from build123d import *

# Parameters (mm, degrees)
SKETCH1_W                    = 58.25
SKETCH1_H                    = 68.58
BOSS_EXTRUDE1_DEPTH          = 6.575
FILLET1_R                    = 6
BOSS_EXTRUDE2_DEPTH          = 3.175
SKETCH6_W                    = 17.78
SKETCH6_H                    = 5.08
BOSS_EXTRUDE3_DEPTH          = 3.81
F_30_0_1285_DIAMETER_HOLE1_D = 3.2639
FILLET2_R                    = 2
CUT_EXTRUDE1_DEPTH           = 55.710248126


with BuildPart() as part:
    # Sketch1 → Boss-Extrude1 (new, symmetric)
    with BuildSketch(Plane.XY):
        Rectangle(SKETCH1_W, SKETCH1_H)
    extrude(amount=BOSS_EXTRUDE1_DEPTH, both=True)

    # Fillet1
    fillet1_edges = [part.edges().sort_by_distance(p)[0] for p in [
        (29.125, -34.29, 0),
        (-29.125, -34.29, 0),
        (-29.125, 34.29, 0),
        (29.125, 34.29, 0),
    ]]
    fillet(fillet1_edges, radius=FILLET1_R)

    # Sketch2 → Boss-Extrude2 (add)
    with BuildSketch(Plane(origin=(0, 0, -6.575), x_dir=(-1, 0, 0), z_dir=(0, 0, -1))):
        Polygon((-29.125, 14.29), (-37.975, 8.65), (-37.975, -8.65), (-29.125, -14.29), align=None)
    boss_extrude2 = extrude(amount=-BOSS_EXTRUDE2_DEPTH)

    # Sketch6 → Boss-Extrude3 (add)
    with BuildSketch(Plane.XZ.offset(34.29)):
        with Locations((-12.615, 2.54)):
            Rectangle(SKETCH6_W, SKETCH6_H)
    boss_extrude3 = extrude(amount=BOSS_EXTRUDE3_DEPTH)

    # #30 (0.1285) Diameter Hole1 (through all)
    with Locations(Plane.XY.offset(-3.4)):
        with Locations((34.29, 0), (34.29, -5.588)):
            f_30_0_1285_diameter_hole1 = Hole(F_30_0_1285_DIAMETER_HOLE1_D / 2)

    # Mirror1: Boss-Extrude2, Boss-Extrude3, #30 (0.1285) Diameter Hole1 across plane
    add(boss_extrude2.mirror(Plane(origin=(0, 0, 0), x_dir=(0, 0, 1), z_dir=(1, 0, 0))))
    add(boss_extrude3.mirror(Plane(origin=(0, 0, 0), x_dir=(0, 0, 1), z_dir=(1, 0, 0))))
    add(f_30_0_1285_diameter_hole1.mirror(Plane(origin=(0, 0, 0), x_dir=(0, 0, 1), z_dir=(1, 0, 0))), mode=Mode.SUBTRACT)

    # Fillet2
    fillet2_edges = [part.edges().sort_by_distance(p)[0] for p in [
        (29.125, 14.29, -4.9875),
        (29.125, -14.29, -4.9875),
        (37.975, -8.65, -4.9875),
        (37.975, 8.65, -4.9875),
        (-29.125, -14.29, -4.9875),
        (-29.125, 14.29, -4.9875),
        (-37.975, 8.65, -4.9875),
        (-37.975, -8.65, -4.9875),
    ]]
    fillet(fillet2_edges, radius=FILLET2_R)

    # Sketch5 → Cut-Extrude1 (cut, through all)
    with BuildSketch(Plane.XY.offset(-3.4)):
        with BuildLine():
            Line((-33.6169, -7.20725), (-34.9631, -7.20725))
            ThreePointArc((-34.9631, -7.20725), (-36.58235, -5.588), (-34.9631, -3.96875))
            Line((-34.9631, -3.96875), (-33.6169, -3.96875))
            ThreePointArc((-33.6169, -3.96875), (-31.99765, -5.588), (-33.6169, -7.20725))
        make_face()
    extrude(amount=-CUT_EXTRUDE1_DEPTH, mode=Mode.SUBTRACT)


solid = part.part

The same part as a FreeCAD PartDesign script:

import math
import FreeCAD as App
import Part
import Sketcher
from FreeCAD import Vector
Q = App.Units.Quantity


def edges_at(feature, points):
    """Names of the edges that pass closest to the given points."""
    edges = feature.Shape.Edges
    near = lambda p: min(range(len(edges)), key=lambda i: edges[i].distToShape(Part.Vertex(*p))[0])
    return sorted({f"Edge{near(p) + 1}" for p in points})


def add_polygon(sketch, points):
    """Adds a closed chain of lines whose ends are joined by coincident constraints."""
    first, n = sketch.GeometryCount, len(points)
    for a, b in zip(points, points[1:] + points[:1]):
        sketch.addGeometry(Part.LineSegment(App.Vector(*a, 0), App.Vector(*b, 0)), False)
    for i in range(n):
        sketch.addConstraint(Sketcher.Constraint("Coincident", first + i, 2, first + (i + 1) % n, 1))

doc = App.newDocument("Part")
body = doc.addObject("PartDesign::Body", "Body")

sketch1 = doc.addObject("Sketcher::SketchObject", "Sketch")
body.addObject(sketch1)
sketch1.AttachmentSupport = (doc.XY_Plane, [""])
sketch1.MapMode = "FlatFace"
add_polygon(sketch1, [(-29, 34), (-29, -34), (29, -34), (29, 34)])
sketch1.addConstraint([
    Sketcher.Constraint("Vertical", 0),
    Sketcher.Constraint("Horizontal", 1),
    Sketcher.Constraint("Vertical", 2),
    Sketcher.Constraint("Horizontal", 3),
    Sketcher.Constraint("Symmetric", 0, 2, 2, 2, -1, 1),
    Sketcher.Constraint("DistanceY", 0, 2, 0, 1, Q("2.7 in")),
    Sketcher.Constraint("DistanceX", 1, 1, 1, 2, Q("58.25 mm")),
])
pad1 = doc.addObject("PartDesign::Pad", "Pad")
body.addObject(pad1)
pad1.Profile = sketch1
pad1.Length = 13.15
pad1.Midplane = True
doc.recompute()

fillet = doc.addObject("PartDesign::Fillet", "Fillet")
body.addObject(fillet)
fillet.Base = (pad1, edges_at(pad1, [
    (29.125, -34.29, 0),
    (-29.125, -34.29, 0),
    (-29.125, 34.29, 0),
    (29.125, 34.29, 0),
]))
fillet.Radius = 6

sketch2 = doc.addObject("Sketcher::SketchObject", "Sketch001")
body.addObject(sketch2)
sketch2.AttachmentSupport = (doc.XY_Plane, [""])
sketch2.MapMode = "FlatFace"
sketch2.AttachmentOffset = App.Placement(Vector(0, 0, -6.575), App.Rotation())
add_polygon(sketch2, [(29, 14), (38, 9), (38, -9), (29, -14)])
sketch2.addConstraint([
    Sketcher.Constraint("Vertical", 1),
    Sketcher.Constraint("Vertical", 3),
    Sketcher.Constraint("Equal", 0, 2),
    Sketcher.Constraint("DistanceY", 1, 2, 1, 1, Q("17.3 mm")),
    Sketcher.Constraint("DistanceY", 3, 1, 3, 2, Q("28.58 mm")),
    Sketcher.Constraint("DistanceX", -1, 1, 0, 2, Q("37.975 mm")),
    Sketcher.Constraint("DistanceY", -1, 1, 0, 2, Q("8.65 mm")),
    Sketcher.Constraint("DistanceX", -1, 1, 2, 2, Q("29.125 mm")),
])
pad2 = doc.addObject("PartDesign::Pad", "Pad001")
body.addObject(pad2)
pad2.Profile = sketch2
pad2.Length = Q("0.125 in")

sketch3 = doc.addObject("Sketcher::SketchObject", "Sketch002")
body.addObject(sketch3)
sketch3.AttachmentSupport = (doc.XZ_Plane, [""])
sketch3.MapMode = "FlatFace"
sketch3.AttachmentOffset = App.Placement(Vector(0, 0, 1.35 * 25.4), App.Rotation())
add_polygon(sketch3, [(-22, 5), (-22, 0), (-4, 0), (-4, 5)])
sketch3.addConstraint([
    Sketcher.Constraint("Vertical", 0),
    Sketcher.Constraint("Horizontal", 1),
    Sketcher.Constraint("Vertical", 2),
    Sketcher.Constraint("Horizontal", 3),
    Sketcher.Constraint("PointOnObject", 0, 2, -1),
    Sketcher.Constraint("DistanceX", 1, 1, 1, 2, Q("0.7 in")),
    Sketcher.Constraint("DistanceY", 0, 2, 0, 1, Q("0.2 in")),
    Sketcher.Constraint("DistanceX", 0, 2, -1, 1, Q("21.505 mm")),
])
pad3 = doc.addObject("PartDesign::Pad", "Pad002")
body.addObject(pad3)
pad3.Profile = sketch3
pad3.Length = Q("0.15 in")

sketch4 = doc.addObject("Sketcher::SketchObject", "Sketch003")
body.addObject(sketch4)
sketch4.AttachmentSupport = (doc.XY_Plane, [""])
sketch4.MapMode = "FlatFace"
sketch4.AttachmentOffset = App.Placement(Vector(0, 0, -3.4), App.Rotation())
sketch4.addGeometry([
    Part.Circle(Vector(34.3, 0, 0), Vector(0, 0, 1), 1.6),
    Part.Circle(Vector(34.3, -5.6, 0), Vector(0, 0, 1), 1.6),
], False)
sketch4.addConstraint([
    Sketcher.Constraint("Equal", 0, 1),
    Sketcher.Constraint("PointOnObject", 0, 3, -1),
    Sketcher.Constraint("Vertical", 0, 3, 1, 3),
    Sketcher.Constraint("Diameter", 0, Q("0.1285 in")),
    Sketcher.Constraint("DistanceX", -1, 1, 0, 3, Q("1.35 in")),
    Sketcher.Constraint("DistanceY", 1, 3, -1, 1, Q("0.22 in")),
])
doc.recompute()
hole = doc.addObject("PartDesign::Hole", "Hole")
body.addObject(hole)
hole.Profile = sketch4
hole.ThreadType = "None"
hole.Diameter = Q("0.1285 in")
hole.DepthType = "ThroughAll"
doc.recompute()

mirrored = doc.addObject("PartDesign::Mirrored", "Mirrored")
body.addObject(mirrored)
mirrored.Originals = [pad2, pad3, hole]
mirrored.MirrorPlane = (doc.YZ_Plane, [""])
body.Tip = mirrored
doc.recompute()

fillet2 = doc.addObject("PartDesign::Fillet", "Fillet001")
body.addObject(fillet2)
fillet2.Base = (mirrored, edges_at(mirrored, [
    (29.125, 14.29, -4.987),
    (29.125, -14.29, -4.987),
    (37.975, -8.65, -4.987),
    (37.975, 8.65, -4.987),
    (-29.125, -14.29, -4.987),
    (-29.125, 14.29, -4.987),
    (-37.975, 8.65, -4.987),
    (-37.975, -8.65, -4.987),
]))
fillet2.Radius = 2

sketch5 = doc.addObject("Sketcher::SketchObject", "Sketch004")
body.addObject(sketch5)
sketch5.AttachmentSupport = (doc.XY_Plane, [""])
sketch5.MapMode = "FlatFace"
sketch5.AttachmentOffset = App.Placement(Vector(0, 0, -3.4), App.Rotation())
sketch5.addGeometry([
    Part.LineSegment(Vector(-35, -7.2, 0), Vector(-33.6, -7.2, 0)),
    Part.ArcOfCircle(Part.Circle(Vector(-33.6, -5.6, 0), Vector(0, 0, 1), 1.6), math.radians(-90), math.radians(90)),
    Part.LineSegment(Vector(-33.6, -4, 0), Vector(-35, -4, 0)),
    Part.ArcOfCircle(Part.Circle(Vector(-35, -5.6, 0), Vector(0, 0, 1), 1.6), math.radians(90), math.radians(270)),
], False)
sketch5.addConstraint([
    Sketcher.Constraint("Tangent", 0, 2, 1, 1),
    Sketcher.Constraint("Tangent", 1, 2, 2, 1),
    Sketcher.Constraint("Tangent", 2, 2, 3, 1),
    Sketcher.Constraint("Tangent", 3, 2, 0, 1),
    Sketcher.Constraint("Horizontal", 0),
    Sketcher.Constraint("Horizontal", 2),
    Sketcher.Constraint("DistanceX", 0, 1, 0, 2, Q("0.053 in")),
    Sketcher.Constraint("DistanceY", 1, 3, -1, 1, Q("0.22 in")),
    Sketcher.Constraint("DistanceY", 1, 2, -1, 1, Q("0.15625 in")),
    Sketcher.Constraint("DistanceX", 1, 3, -1, 1, Q("1.3235 in")),
])
pocket1 = doc.addObject("PartDesign::Pocket", "Pocket")
body.addObject(pocket1)
pocket1.Profile = sketch5
pocket1.Type = "ThroughAll"

doc.recompute()
